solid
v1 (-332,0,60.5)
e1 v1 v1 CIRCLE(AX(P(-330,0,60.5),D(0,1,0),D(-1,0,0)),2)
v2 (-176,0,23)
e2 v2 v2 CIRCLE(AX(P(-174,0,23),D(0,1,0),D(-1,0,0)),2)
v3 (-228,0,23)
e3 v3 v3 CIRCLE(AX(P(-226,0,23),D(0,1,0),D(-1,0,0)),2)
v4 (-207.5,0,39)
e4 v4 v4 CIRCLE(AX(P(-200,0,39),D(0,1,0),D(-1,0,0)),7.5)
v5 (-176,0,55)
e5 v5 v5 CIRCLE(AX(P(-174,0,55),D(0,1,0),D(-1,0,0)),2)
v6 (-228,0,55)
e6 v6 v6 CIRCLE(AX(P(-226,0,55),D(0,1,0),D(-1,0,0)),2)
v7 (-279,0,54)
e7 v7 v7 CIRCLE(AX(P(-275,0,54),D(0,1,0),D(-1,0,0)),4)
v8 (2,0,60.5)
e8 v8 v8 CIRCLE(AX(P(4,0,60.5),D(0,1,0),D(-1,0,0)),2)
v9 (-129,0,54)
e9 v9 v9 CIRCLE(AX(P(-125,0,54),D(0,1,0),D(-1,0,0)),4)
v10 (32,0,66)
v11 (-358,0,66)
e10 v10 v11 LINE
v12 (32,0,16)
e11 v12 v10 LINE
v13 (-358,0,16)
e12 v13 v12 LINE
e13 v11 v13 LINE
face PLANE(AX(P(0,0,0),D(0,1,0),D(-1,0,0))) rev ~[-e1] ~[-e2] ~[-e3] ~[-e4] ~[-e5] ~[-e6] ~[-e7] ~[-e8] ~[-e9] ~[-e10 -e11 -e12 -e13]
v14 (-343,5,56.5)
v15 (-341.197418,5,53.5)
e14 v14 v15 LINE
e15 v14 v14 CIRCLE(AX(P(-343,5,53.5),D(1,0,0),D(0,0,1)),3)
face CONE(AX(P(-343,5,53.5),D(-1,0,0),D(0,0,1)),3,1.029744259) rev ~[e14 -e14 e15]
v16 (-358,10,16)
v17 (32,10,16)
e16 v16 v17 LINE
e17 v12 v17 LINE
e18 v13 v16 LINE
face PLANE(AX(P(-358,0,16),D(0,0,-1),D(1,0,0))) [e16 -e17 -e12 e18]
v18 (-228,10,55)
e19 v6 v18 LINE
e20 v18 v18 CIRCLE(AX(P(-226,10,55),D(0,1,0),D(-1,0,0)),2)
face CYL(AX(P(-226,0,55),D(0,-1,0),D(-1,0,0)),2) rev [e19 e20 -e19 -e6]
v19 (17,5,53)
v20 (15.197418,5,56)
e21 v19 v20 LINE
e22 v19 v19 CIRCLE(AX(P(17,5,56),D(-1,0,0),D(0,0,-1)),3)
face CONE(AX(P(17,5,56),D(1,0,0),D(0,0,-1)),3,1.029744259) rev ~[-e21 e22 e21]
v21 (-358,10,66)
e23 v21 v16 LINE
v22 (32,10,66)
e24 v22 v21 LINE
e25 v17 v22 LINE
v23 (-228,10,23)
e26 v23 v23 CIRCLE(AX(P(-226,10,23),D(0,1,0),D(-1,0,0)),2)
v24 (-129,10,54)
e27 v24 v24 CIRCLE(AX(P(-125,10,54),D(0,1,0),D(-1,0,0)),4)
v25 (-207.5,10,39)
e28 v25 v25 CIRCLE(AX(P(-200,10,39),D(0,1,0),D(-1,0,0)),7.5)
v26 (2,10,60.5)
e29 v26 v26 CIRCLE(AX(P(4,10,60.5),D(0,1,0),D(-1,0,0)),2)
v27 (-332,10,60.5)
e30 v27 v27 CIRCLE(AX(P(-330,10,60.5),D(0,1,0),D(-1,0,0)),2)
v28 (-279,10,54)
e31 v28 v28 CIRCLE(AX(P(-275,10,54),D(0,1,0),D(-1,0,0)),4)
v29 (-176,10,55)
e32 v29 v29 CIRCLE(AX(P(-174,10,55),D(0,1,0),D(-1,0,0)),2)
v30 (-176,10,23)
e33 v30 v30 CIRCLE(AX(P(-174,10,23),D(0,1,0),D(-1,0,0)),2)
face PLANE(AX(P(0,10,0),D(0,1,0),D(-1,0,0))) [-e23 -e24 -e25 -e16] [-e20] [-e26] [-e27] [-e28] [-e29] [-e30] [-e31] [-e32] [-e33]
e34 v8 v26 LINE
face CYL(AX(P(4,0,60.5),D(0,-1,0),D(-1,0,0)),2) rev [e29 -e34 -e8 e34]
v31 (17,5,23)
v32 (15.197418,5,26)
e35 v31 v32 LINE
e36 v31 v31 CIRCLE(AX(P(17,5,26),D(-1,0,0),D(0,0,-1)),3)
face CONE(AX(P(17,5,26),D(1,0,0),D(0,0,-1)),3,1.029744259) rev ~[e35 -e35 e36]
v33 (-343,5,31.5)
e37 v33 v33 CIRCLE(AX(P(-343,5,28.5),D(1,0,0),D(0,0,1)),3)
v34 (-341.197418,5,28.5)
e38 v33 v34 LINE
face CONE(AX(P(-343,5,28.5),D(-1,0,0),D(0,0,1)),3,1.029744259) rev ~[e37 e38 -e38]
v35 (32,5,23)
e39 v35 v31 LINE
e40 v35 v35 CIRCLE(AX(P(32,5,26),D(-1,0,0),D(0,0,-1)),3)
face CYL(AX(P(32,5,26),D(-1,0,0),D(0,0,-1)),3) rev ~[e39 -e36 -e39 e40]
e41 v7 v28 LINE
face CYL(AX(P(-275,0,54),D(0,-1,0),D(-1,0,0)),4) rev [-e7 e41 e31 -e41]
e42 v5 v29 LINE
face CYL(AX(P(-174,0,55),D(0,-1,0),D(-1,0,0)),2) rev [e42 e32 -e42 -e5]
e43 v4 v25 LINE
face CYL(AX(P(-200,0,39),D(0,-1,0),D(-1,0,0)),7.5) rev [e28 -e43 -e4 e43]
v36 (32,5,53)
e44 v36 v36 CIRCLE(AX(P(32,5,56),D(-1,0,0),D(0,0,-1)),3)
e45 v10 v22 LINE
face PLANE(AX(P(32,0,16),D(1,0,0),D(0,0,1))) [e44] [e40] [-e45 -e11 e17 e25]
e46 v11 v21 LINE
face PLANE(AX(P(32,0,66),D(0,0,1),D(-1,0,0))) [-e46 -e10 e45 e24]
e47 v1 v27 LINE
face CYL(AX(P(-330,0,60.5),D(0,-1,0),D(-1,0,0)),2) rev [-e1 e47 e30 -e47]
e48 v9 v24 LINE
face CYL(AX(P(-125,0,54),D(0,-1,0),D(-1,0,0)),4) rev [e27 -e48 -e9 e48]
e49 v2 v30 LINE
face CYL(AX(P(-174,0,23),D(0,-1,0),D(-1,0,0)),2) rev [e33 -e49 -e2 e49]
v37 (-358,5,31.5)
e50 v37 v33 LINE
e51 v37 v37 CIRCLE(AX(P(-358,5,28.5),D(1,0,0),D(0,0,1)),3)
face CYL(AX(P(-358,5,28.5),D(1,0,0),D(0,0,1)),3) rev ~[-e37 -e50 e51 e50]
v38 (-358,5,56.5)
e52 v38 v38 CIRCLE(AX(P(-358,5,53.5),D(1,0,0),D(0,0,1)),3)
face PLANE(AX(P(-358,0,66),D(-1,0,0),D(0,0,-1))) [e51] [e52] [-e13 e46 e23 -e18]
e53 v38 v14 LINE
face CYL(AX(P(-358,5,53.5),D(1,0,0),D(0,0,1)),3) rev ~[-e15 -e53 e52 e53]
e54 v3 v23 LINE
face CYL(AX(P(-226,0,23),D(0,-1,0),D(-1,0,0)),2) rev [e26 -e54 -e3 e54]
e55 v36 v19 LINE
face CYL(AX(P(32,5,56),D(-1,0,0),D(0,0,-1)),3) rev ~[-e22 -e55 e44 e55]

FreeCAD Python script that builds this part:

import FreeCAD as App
import Part
import Sketcher

V = App.Vector
Q = App.Units.Quantity

doc = App.newDocument("Part")
body = doc.addObject("PartDesign::Body", "Body")

# Sketch on XZ plane
sketch1 = doc.addObject("Sketcher::SketchObject", "Sketch")
body.addObject(sketch1)
sketch1.AttachmentSupport = (doc.XZ_Plane, [""])
sketch1.MapMode = "FlatFace"
sketch1.addGeometry([
    Part.LineSegment(V(32, 66, 0), V(32, 16, 0)),  # 0
    Part.LineSegment(V(32, 16, 0), V(-358, 16, 0)),  # 1
    Part.LineSegment(V(-358, 16, 0), V(-358, 66, 0)),  # 2
    Part.LineSegment(V(-358, 66, 0), V(32, 66, 0)),  # 3
    Part.Circle(V(-174, 23, 0), V(0, 0, 1), 2),  # 4
    Part.Circle(V(-226, 23, 0), V(0, 0, 1), 2),  # 5
    Part.Circle(V(4, 60.5, 0), V(0, 0, 1), 2),  # 6
    Part.Circle(V(-125, 54, 0), V(0, 0, 1), 4),  # 7
    Part.Circle(V(-174, 55, 0), V(0, 0, 1), 2),  # 8
    Part.Circle(V(-226, 55, 0), V(0, 0, 1), 2),  # 9
    Part.Circle(V(-275, 54, 0), V(0, 0, 1), 4),  # 10
    Part.Circle(V(-330, 60.5, 0), V(0, 0, 1), 2),  # 11
    Part.Circle(V(-200, 39, 0), V(0, 0, 1), 7.5),  # 12
], False)
sketch1.addConstraint([
    Sketcher.Constraint("Coincident", 0, 2, 1, 1),
    Sketcher.Constraint("Coincident", 1, 2, 2, 1),
    Sketcher.Constraint("Coincident", 2, 2, 3, 1),
    Sketcher.Constraint("Coincident", 3, 2, 0, 1),
    Sketcher.Constraint("Vertical", 0),
    Sketcher.Constraint("Horizontal", 1),
    Sketcher.Constraint("Vertical", 2),
    Sketcher.Constraint("Horizontal", 3),
    Sketcher.Constraint("Equal", 4, 5),
    Sketcher.Constraint("Equal", 5, 6),
    Sketcher.Constraint("Equal", 6, 8),
    Sketcher.Constraint("Equal", 8, 9),
    Sketcher.Constraint("Equal", 7, 10),
    Sketcher.Constraint("Equal", 9, 11),
    Sketcher.Constraint("Horizontal", 4, 3, 5, 3),
    Sketcher.Constraint("Horizontal", 8, 3, 9, 3),
    Sketcher.Constraint("Horizontal", 7, 3, 10, 3),
    Sketcher.Constraint("Horizontal", 6, 3, 11, 3),
    Sketcher.Constraint("Vertical", 4, 3, 8, 3),
    Sketcher.Constraint("Vertical", 5, 3, 9, 3),
    Sketcher.Constraint("Diameter", 4, Q("4 mm")),
    Sketcher.Constraint("Diameter", 7, Q("8 mm")),
    Sketcher.Constraint("Diameter", 12, Q("15 mm")),
    Sketcher.Constraint("DistanceX", 1, 2, 1, 1, Q("390 mm")),
    Sketcher.Constraint("DistanceY", 0, 2, 0, 1, Q("50 mm")),
    Sketcher.Constraint("DistanceX", -1, 1, 6, 3, Q("4 mm")),
    Sketcher.Constraint("DistanceY", 4, 3, 7, 3, Q("31 mm")),
    Sketcher.Constraint("DistanceX", 12, 3, 7, 3, Q("75 mm")),
    Sketcher.Constraint("DistanceY", 12, 3, 7, 3, Q("15 mm")),
    Sketcher.Constraint("DistanceX", 6, 3, 0, 2, Q("28 mm")),
    Sketcher.Constraint("DistanceX", 7, 3, 0, 2, Q("157 mm")),
    Sketcher.Constraint("DistanceX", 1, 2, 11, 3, Q("28 mm")),
    Sketcher.Constraint("DistanceY", 10, 3, 2, 2, Q("12 mm")),
    Sketcher.Constraint("DistanceY", 8, 3, 6, 3, Q("5.5 mm")),
    Sketcher.Constraint("DistanceY", 11, 3, 2, 2, Q("5.5 mm")),
    Sketcher.Constraint("DistanceX", 4, 3, -1, 1, Q("174 mm")),
    Sketcher.Constraint("DistanceY", -1, 1, 4, 3, Q("23 mm")),
    Sketcher.Constraint("DistanceX", 5, 3, -1, 1, Q("226 mm")),
    Sketcher.Constraint("DistanceX", 10, 3, -1, 1, Q("275 mm")),
])
pad1 = doc.addObject("PartDesign::Pad", "Pad")
body.addObject(pad1)
pad1.Profile = sketch1
pad1.Length = 10
pad1.Reversed = True

# Sketch on YZ plane
sketch2 = doc.addObject("Sketcher::SketchObject", "Sketch001")
body.addObject(sketch2)
sketch2.AttachmentSupport = (doc.YZ_Plane, [""])
sketch2.MapMode = "FlatFace"
sketch2.AttachmentOffset = App.Placement(V(0, 0, 32), App.Rotation())
sketch2.addGeometry([
    Part.Circle(V(5, 56, 0), V(0, 0, 1), 3),
    Part.Circle(V(5, 26, 0), V(0, 0, 1), 3),
], False)
sketch2.addConstraint([
    Sketcher.Constraint("Equal", 0, 1),
    Sketcher.Constraint("Vertical", 0, 3, 1, 3),
    Sketcher.Constraint("Diameter", 0, Q("6 mm")),
    Sketcher.Constraint("DistanceX", -1, 1, 0, 3, Q("5 mm")),
    Sketcher.Constraint("DistanceY", -1, 1, 0, 3, Q("56 mm")),
    Sketcher.Constraint("DistanceY", -1, 1, 1, 3, Q("26 mm")),
])
doc.recompute()
hole = doc.addObject("PartDesign::Hole", "Hole")
body.addObject(hole)
hole.Profile = sketch2
hole.ThreadType = "None"
hole.Diameter = 6
hole.DepthType = "Dimension"
hole.Depth = 15
hole.DrillPoint = "Angled"
hole.DrillPointAngle = 118

# Sketch on YZ plane
sketch3 = doc.addObject("Sketcher::SketchObject", "Sketch002")
body.addObject(sketch3)
sketch3.AttachmentSupport = (doc.YZ_Plane, [""])
sketch3.MapMode = "FlatFace"
sketch3.AttachmentOffset = App.Placement(V(0, 0, -358), App.Rotation())
sketch3.addGeometry([
    Part.Circle(V(5, 53.5, 0), V(0, 0, 1), 3),
    Part.Circle(V(5, 28.5, 0), V(0, 0, 1), 3),
], False)
sketch3.addConstraint([
    Sketcher.Constraint("Equal", 0, 1),
    Sketcher.Constraint("Vertical", 0, 3, 1, 3),
    Sketcher.Constraint("Diameter", 0, Q("6 mm")),
    Sketcher.Constraint("DistanceX", -1, 1, 0, 3, Q("5 mm")),
    Sketcher.Constraint("DistanceY", 1, 3, 0, 3, Q("25 mm")),
    Sketcher.Constraint("DistanceY", -1, 1, 0, 3, Q("53.5 mm")),
])
doc.recompute()
hole2 = doc.addObject("PartDesign::Hole", "Hole001")
body.addObject(hole2)
hole2.Profile = sketch3
hole2.ThreadType = "None"
hole2.Diameter = 6
hole2.DepthType = "Dimension"
hole2.Depth = 15
hole2.DrillPoint = "Angled"
hole2.DrillPointAngle = 118
hole2.Reversed = True

doc.recompute()
